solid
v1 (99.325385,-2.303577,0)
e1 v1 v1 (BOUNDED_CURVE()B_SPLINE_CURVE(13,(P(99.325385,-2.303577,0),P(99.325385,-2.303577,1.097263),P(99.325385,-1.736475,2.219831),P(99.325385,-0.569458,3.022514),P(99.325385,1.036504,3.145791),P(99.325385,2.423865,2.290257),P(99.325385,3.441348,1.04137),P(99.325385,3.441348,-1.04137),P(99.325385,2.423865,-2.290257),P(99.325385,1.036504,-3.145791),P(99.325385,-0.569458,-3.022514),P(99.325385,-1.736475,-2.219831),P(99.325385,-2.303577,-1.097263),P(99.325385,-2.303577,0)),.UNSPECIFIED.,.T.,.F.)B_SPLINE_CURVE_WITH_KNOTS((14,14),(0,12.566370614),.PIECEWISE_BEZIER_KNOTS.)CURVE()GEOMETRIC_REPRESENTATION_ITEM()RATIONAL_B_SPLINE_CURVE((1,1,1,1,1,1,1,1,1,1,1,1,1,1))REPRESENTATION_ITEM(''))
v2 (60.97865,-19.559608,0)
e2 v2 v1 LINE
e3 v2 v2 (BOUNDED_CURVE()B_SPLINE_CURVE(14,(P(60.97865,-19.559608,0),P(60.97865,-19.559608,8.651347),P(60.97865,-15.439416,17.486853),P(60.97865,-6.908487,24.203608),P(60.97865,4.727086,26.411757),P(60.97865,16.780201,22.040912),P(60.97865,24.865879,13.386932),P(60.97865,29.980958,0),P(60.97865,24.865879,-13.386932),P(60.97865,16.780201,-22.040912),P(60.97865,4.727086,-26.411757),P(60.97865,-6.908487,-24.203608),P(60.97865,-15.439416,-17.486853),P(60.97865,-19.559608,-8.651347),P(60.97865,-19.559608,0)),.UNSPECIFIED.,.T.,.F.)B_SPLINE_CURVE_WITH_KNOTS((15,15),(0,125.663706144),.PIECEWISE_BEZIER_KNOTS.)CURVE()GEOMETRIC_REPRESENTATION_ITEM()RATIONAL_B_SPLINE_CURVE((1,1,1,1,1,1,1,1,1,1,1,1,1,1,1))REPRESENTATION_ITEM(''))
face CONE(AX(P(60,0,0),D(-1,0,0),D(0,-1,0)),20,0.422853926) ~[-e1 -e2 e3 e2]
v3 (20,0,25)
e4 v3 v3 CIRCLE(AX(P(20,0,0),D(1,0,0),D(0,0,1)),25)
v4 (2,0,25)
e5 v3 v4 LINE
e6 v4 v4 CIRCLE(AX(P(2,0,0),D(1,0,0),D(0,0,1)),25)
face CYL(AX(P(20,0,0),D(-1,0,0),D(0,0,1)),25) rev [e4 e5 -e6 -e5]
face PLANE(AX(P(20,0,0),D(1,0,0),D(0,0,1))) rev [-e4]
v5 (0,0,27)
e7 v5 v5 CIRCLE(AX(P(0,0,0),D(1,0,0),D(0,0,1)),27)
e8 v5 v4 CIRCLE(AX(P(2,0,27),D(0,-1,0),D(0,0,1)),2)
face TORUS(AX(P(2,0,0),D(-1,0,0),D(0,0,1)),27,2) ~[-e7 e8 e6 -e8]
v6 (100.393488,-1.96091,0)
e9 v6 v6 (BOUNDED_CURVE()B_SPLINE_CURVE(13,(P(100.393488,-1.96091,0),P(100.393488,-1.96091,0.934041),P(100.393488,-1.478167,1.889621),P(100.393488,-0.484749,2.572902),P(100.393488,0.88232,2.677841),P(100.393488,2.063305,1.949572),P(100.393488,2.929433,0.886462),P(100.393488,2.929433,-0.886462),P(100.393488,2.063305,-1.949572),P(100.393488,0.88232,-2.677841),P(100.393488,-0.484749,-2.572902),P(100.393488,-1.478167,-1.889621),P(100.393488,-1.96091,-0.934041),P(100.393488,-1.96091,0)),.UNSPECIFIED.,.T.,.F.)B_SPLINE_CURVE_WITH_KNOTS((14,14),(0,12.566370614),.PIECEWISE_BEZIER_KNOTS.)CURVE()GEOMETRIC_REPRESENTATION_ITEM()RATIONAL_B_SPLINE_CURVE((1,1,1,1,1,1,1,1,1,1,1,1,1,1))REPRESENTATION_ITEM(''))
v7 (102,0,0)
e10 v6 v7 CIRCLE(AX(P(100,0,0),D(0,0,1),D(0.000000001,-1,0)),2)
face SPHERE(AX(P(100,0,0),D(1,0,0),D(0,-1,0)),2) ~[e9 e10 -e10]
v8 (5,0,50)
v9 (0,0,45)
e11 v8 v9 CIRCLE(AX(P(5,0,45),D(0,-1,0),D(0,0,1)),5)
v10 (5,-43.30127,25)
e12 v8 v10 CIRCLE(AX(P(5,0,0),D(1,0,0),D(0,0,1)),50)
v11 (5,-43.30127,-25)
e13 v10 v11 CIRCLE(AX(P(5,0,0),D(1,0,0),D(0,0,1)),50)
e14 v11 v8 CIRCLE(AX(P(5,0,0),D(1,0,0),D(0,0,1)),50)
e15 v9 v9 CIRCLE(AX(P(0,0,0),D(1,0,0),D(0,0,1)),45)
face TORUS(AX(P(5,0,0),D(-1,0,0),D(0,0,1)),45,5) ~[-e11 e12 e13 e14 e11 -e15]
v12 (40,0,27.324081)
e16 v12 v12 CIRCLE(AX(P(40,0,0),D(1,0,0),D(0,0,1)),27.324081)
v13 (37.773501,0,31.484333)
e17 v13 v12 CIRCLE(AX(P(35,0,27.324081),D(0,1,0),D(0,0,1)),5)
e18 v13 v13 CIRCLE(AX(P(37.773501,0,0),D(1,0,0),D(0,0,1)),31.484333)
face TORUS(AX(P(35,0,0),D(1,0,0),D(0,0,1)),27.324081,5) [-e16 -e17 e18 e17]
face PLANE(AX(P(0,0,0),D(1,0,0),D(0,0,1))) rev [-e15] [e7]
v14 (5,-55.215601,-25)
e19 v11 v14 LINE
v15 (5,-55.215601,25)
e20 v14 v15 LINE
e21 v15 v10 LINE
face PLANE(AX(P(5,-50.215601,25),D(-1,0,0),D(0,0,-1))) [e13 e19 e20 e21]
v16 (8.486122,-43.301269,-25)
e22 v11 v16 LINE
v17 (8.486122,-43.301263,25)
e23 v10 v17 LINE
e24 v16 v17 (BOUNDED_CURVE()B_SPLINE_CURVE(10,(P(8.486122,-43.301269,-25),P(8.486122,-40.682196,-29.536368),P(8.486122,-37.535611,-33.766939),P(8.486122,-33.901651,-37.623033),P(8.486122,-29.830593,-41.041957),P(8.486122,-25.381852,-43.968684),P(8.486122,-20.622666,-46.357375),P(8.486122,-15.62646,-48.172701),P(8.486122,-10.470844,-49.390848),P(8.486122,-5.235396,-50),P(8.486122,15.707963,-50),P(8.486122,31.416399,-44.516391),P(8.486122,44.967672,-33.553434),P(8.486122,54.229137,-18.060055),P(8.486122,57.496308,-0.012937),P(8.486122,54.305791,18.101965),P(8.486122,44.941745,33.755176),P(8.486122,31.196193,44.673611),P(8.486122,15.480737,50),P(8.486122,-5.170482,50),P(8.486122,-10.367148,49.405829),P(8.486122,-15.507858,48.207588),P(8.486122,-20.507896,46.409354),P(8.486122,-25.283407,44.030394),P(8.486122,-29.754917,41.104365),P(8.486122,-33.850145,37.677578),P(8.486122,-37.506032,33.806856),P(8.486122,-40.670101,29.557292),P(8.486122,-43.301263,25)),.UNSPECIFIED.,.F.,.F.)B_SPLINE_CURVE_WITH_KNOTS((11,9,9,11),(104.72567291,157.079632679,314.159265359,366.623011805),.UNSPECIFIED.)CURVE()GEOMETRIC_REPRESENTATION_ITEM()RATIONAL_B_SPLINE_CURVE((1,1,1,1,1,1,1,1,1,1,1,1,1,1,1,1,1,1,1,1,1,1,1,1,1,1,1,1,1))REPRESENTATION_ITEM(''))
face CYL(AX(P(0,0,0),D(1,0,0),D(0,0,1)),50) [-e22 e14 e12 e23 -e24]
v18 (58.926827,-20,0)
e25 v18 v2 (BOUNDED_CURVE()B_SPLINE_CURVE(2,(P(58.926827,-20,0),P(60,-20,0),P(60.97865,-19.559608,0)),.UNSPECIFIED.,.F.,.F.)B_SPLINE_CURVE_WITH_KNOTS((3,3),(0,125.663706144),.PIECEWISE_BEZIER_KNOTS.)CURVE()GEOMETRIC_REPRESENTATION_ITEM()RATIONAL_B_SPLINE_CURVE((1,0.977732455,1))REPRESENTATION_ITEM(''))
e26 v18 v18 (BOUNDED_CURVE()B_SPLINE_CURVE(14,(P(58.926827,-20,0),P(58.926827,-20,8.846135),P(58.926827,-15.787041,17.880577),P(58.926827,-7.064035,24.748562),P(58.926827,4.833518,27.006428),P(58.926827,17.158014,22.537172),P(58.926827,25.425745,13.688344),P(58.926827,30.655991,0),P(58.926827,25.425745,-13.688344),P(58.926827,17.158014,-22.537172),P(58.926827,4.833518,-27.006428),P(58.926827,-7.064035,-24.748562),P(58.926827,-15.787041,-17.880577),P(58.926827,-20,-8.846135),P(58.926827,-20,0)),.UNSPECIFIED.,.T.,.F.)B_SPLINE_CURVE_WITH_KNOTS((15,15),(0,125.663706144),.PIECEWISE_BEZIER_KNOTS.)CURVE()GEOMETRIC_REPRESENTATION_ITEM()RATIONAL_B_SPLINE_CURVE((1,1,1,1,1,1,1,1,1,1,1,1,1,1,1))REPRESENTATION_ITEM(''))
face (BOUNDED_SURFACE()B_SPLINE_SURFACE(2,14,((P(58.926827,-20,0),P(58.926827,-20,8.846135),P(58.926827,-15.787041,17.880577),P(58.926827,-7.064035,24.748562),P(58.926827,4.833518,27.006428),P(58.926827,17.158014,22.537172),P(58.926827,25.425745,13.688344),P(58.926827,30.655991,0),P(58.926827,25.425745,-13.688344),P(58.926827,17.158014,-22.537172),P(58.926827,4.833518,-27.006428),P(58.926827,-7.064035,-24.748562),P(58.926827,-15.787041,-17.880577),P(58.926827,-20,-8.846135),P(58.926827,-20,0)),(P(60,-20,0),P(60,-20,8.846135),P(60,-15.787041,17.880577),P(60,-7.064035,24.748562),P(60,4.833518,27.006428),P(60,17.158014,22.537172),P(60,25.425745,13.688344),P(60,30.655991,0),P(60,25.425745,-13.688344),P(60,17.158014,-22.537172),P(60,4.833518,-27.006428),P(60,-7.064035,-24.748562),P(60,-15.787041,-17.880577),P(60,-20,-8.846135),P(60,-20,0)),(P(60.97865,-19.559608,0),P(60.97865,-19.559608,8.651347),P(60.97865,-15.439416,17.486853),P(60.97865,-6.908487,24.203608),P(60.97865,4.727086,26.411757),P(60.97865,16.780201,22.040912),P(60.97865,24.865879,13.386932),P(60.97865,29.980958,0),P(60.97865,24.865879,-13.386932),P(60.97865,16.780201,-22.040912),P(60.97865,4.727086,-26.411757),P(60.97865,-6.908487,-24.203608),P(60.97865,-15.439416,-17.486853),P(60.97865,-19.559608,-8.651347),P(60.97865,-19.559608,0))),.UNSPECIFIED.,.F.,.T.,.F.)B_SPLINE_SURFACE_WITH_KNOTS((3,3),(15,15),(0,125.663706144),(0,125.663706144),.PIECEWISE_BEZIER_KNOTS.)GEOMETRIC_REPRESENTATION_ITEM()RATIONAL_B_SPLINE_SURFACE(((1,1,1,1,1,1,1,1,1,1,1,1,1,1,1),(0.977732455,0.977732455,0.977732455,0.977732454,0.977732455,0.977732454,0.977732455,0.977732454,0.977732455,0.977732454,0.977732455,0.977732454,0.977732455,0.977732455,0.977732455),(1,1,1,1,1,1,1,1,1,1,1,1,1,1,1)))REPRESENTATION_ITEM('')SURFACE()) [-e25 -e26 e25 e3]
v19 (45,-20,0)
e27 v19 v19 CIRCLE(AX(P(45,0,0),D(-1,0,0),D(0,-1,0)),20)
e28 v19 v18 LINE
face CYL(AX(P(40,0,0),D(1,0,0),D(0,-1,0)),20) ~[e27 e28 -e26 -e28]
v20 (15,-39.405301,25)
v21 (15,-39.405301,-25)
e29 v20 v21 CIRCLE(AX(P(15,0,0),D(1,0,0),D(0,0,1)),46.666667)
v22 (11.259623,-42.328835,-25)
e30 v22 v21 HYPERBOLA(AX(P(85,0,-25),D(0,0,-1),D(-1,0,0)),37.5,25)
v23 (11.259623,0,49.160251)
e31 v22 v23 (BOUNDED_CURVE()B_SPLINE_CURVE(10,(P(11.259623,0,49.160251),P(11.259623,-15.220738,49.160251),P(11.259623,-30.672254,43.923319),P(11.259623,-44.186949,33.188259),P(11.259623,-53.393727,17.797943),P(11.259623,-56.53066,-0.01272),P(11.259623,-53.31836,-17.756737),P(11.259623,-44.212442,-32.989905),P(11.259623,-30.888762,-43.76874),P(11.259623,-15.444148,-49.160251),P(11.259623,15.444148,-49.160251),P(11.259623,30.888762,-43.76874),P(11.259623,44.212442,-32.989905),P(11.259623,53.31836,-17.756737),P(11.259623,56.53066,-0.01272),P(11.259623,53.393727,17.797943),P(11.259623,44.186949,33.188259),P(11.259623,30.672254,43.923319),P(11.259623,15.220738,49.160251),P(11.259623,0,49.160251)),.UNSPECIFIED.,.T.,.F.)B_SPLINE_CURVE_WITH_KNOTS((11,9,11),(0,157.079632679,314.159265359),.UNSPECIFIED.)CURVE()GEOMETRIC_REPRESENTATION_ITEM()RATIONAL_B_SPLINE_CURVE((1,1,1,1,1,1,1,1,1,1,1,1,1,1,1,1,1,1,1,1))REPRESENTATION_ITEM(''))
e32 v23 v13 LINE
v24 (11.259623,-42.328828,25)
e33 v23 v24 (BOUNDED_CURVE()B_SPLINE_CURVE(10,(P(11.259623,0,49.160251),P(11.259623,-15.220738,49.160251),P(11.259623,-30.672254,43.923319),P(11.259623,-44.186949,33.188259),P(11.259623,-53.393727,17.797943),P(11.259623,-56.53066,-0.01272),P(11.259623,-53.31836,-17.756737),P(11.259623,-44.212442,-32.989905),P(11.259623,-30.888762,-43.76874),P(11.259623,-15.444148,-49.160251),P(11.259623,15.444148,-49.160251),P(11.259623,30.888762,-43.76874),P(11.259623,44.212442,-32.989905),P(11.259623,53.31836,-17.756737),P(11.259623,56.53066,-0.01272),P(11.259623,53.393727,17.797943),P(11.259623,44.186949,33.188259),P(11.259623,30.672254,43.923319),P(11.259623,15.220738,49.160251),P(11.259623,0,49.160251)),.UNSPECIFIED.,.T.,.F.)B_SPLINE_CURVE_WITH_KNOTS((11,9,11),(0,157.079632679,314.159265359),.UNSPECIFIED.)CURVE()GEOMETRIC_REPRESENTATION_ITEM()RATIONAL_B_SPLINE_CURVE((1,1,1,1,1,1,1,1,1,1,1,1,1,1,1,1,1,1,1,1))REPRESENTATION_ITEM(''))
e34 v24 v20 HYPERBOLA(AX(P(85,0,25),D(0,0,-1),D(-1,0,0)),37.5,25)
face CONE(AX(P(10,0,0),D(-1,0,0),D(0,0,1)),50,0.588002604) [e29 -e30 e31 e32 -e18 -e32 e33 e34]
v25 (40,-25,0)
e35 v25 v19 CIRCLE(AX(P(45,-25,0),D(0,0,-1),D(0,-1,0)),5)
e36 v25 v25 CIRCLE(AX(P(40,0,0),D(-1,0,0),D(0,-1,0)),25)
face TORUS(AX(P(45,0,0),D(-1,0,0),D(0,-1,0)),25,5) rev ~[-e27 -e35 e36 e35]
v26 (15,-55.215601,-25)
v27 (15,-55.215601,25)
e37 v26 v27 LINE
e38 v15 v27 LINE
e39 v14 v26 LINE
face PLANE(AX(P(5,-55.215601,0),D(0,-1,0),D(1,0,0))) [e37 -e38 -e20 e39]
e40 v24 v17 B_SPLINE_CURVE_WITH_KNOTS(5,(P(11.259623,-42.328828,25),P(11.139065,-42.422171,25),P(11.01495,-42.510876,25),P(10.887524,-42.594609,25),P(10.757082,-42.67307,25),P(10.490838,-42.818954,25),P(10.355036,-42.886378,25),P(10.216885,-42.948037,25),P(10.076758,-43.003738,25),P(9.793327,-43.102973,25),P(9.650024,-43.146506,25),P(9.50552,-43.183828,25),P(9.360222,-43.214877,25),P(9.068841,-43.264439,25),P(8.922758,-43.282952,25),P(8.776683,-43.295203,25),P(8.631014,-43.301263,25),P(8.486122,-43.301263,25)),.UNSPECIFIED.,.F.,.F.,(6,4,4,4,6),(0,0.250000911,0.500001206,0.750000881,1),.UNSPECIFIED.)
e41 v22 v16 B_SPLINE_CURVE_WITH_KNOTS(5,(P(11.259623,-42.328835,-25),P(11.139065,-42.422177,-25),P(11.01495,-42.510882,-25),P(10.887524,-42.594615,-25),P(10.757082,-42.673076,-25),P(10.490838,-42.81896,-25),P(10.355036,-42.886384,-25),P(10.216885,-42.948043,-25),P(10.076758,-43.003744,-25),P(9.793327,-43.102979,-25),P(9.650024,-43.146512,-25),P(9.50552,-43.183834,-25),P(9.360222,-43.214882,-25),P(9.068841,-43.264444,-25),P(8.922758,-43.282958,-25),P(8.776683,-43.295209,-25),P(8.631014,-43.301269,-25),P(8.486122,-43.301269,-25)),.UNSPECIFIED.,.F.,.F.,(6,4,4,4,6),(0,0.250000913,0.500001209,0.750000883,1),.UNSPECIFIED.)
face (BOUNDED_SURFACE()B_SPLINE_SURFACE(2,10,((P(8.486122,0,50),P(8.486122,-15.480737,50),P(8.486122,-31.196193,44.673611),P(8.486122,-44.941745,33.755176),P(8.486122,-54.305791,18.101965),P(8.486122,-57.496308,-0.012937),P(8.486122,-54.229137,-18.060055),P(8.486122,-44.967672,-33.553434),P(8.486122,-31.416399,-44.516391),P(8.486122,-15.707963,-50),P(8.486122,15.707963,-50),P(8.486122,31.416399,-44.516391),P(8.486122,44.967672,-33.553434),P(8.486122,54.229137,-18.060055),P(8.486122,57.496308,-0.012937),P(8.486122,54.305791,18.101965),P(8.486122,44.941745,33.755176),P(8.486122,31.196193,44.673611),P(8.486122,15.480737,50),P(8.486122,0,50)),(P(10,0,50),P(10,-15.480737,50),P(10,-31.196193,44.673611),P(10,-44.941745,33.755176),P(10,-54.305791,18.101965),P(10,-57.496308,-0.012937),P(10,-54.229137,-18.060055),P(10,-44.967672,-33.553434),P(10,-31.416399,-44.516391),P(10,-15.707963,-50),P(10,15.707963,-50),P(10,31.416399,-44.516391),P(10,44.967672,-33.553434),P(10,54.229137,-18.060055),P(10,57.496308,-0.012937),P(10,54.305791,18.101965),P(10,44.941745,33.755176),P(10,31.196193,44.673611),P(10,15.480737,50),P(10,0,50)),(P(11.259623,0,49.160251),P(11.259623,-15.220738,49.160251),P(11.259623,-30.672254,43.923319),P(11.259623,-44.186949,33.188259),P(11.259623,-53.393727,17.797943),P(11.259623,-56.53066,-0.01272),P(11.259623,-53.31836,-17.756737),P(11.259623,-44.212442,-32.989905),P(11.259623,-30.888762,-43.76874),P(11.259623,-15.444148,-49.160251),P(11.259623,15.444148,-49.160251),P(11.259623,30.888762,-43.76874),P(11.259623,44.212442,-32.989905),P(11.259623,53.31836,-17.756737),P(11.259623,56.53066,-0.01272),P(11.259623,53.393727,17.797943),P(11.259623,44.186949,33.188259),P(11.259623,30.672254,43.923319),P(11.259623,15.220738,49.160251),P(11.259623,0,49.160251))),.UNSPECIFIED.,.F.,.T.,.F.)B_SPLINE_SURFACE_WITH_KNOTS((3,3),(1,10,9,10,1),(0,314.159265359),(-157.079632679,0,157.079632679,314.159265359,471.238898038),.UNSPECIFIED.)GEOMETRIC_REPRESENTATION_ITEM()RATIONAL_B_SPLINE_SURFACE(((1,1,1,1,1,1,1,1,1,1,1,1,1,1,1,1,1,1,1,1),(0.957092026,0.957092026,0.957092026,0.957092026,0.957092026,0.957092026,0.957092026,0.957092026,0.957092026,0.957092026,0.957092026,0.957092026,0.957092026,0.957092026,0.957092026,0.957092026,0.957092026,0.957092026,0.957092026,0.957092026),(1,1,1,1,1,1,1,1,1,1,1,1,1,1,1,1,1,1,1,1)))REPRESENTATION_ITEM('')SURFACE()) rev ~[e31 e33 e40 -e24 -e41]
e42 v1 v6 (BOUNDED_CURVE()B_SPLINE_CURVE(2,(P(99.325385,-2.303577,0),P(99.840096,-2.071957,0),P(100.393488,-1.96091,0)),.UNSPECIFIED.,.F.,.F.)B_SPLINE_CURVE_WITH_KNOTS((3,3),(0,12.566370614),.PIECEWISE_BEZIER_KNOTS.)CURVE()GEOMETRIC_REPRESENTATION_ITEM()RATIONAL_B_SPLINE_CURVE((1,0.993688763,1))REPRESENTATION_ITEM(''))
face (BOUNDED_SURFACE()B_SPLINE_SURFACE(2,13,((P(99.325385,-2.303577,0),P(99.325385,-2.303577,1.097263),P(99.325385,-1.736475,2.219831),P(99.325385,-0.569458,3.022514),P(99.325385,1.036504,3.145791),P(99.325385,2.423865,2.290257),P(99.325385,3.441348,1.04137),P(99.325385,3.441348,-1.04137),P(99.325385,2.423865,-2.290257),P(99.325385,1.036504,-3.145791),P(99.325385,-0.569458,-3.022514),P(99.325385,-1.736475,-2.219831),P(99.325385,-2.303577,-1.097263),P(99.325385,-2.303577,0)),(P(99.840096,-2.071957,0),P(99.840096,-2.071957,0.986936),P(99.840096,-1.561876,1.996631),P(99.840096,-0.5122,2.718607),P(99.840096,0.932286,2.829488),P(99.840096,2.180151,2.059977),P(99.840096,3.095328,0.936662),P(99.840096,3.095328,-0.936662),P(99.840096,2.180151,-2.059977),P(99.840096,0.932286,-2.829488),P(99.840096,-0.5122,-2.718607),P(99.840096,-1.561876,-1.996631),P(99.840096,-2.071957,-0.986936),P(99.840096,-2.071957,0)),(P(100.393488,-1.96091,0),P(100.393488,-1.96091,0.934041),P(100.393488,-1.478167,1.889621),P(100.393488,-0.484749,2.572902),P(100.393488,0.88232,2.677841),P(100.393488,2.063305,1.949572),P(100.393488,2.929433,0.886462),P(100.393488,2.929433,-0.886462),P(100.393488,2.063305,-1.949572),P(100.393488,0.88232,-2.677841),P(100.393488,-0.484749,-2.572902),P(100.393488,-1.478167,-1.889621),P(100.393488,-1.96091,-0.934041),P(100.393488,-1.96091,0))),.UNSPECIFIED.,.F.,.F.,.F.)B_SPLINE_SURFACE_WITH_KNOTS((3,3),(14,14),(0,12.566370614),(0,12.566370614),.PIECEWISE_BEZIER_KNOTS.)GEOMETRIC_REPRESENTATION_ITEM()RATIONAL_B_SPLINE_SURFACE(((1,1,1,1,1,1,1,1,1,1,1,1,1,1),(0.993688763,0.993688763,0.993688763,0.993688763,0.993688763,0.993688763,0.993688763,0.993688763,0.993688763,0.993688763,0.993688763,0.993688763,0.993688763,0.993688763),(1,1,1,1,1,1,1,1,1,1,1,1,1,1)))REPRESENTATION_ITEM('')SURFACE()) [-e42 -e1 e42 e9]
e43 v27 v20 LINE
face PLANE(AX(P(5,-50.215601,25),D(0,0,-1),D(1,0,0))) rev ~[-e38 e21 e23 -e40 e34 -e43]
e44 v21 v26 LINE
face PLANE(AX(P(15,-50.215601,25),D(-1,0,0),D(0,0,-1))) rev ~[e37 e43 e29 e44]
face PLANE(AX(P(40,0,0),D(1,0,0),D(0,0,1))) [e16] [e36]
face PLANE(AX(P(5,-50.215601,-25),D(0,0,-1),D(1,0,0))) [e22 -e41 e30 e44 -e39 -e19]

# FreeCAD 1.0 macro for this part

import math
import FreeCAD as App
import Part
import Sketcher

V = App.Vector
Q = App.Units.Quantity


def edges_at(feature, points):
    """Names of the edges that pass closest to the given points."""
    edges = feature.Shape.Edges
    near = lambda p: min(range(len(edges)), key=lambda i: edges[i].distToShape(Part.Vertex(*p))[0])
    return sorted({f"Edge{near(p) + 1}" for p in points})


def add_polygon(sketch, points):
    """Adds a closed chain of lines whose ends are joined by coincident constraints."""
    first, n = sketch.GeometryCount, len(points)
    for a, b in zip(points, points[1:] + points[:1]):
        sketch.addGeometry(Part.LineSegment(App.Vector(*a, 0), App.Vector(*b, 0)), False)
    for i in range(n):
        sketch.addConstraint(Sketcher.Constraint("Coincident", first + i, 2, first + (i + 1) % n, 1))

doc = App.newDocument("Part")
body = doc.addObject("PartDesign::Body", "Body")

# Sketch on XY plane
sketch1 = body.newObject("Sketcher::SketchObject", "Sketch")
sketch1.AttachmentSupport = (doc.getObject("XY_Plane"), [""])
sketch1.MapMode = "FlatFace"
add_polygon(sketch1, [(0, -50), (10, -50), (40, -30), (40, 0), (20, 0), (20, -25), (0, -25)])  # lines 0-6
sketch1.addConstraint([
    Sketcher.Constraint("Horizontal", 0),
    Sketcher.Constraint("Vertical", 2),
    Sketcher.Constraint("Horizontal", 3),
    Sketcher.Constraint("Vertical", 4),
    Sketcher.Constraint("Horizontal", 5),
    Sketcher.Constraint("Vertical", 6),
    Sketcher.Constraint("PointOnObject", 2, 2, -1),
    Sketcher.Constraint("PointOnObject", 5, 2, -2),
    Sketcher.Constraint("Equal", 3, 5),
    Sketcher.Constraint("Equal", 4, 6),
    Sketcher.Constraint("DistanceX", 0, 1, 0, 2, Q("10 mm")),
    Sketcher.Constraint("DistanceX", 3, 2, 3, 1, Q("20 mm")),
    Sketcher.Constraint("DistanceY", 2, 1, 2, 2, Q("30 mm")),
    Sketcher.Constraint("DistanceY", 4, 2, 4, 1, Q("25 mm")),
])
revolution = body.newObject("PartDesign::Revolution", "Revolution")
revolution.Profile = sketch1
revolution.ReferenceAxis = (sketch1, ["H_Axis"])
revolution.Angle = 360

# Sketch on XY plane
sketch2 = body.newObject("Sketcher::SketchObject", "Sketch001")
sketch2.AttachmentSupport = (doc.getObject("XY_Plane"), [""])
sketch2.MapMode = "FlatFace"
sketch2.addGeometry([
    Part.LineSegment(V(40, -20, 0), V(60, -20, 0)),  # 0
    Part.LineSegment(V(60, -20, 0), V(100, -2, 0)),  # 1
    Part.ArcOfCircle(Part.Circle(V(100, 0, 0), V(0, 0, 1), 2), math.radians(-90), math.radians(0)),  # 2
    Part.LineSegment(V(102, 0, 0), V(40, 0, 0)),  # 3
    Part.LineSegment(V(40, 0, 0), V(40, -20, 0)),  # 4
], False)
sketch2.addConstraint([
    Sketcher.Constraint("Coincident", 0, 2, 1, 1),
    Sketcher.Constraint("Coincident", 1, 2, 2, 1),
    Sketcher.Constraint("Coincident", 2, 2, 3, 1),
    Sketcher.Constraint("Coincident", 3, 2, 4, 1),
    Sketcher.Constraint("Coincident", 4, 2, 0, 1),
    Sketcher.Constraint("Horizontal", 0),
    Sketcher.Constraint("Horizontal", 3),
    Sketcher.Constraint("Vertical", 4),
    Sketcher.Constraint("PointOnObject", 2, 3, -1),
    Sketcher.Constraint("PointOnObject", 2, 2, -1),
    Sketcher.Constraint("Vertical", 2, 3, 1, 2),
    Sketcher.Constraint("Equal", 0, 4),
    Sketcher.Constraint("Radius", 2, Q("2 mm")),
    Sketcher.Constraint("DistanceX", 0, 1, 0, 2, Q("20 mm")),
    Sketcher.Constraint("DistanceX", 3, 2, 3, 1, Q("62 mm")),
    Sketcher.Constraint("DistanceX", -1, 1, 2, 3, Q("100 mm")),
])
revolution2 = body.newObject("PartDesign::Revolution", "Revolution001")
revolution2.Profile = sketch2
revolution2.ReferenceAxis = (sketch2, ["H_Axis"])
revolution2.Angle = 360
doc.recompute()

fillet = body.newObject("PartDesign::Fillet", "Fillet")
fillet.Base = (revolution2, edges_at(revolution2, [
    (40, 20, 0),
    (60, 20, 0),
    (40, 0, -30),
    (10, 0, -50),
    (0, 0, -50),
]))
fillet.Radius = 5
doc.recompute()

fillet2 = body.newObject("PartDesign::Fillet", "Fillet001")
fillet2.Base = (fillet, edges_at(fillet, [(100, 2, 0)]))
fillet2.Radius = 5
doc.recompute()

fillet3 = body.newObject("PartDesign::Fillet", "Fillet002")
fillet3.Base = (fillet2, edges_at(fillet2, [(0, 0, -25)]))
fillet3.Radius = 2
body2 = doc.addObject("PartDesign::Body", "Body001")

# Sketch on XY plane
sketch3 = body2.newObject("Sketcher::SketchObject", "Sketch002")
sketch3.AttachmentSupport = (doc.getObject("XY_Plane001"), [""])
sketch3.MapMode = "FlatFace"
add_polygon(sketch3, [(5, -50), (5, -55), (15, -55), (15, -50)])  # lines 0-3
sketch3.addConstraint([
    Sketcher.Constraint("Vertical", 0),
    Sketcher.Constraint("Horizontal", 1),
    Sketcher.Constraint("Vertical", 2),
    Sketcher.Constraint("Horizontal", 3),
    Sketcher.Constraint("DistanceX", 1, 1, 1, 2, Q("10 mm")),
    Sketcher.Constraint("DistanceY", 0, 2, 0, 1, Q("5 mm")),
    Sketcher.Constraint("DistanceX", -1, 1, 0, 2, Q("5 mm")),
    Sketcher.Constraint("DistanceY", 0, 2, -1, 1, Q("55.215601 mm")),
])
pad1 = body2.newObject("PartDesign::Pad", "Pad")
pad1.Profile = sketch3
pad1.Length = 50
pad1.Midplane = True
body.AllowCompound = True
doc.recompute()

boolean = body.newObject("PartDesign::Boolean", "Boolean")
boolean.Type = "Fuse"
boolean.addObjects([body2])

# Sketch on XZ plane
sketch4 = body.newObject("Sketcher::SketchObject", "Sketch003")
sketch4.AttachmentSupport = (doc.getObject("XZ_Plane"), [""])
sketch4.MapMode = "FlatFace"
sketch4.AttachmentOffset = App.Placement(V(0, 0, 50.215601), App.Rotation())
add_polygon(sketch4, [(5, -25), (5, 25), (15, 25), (15, -25)])  # lines 0-3
sketch4.addConstraint([
    Sketcher.Constraint("Vertical", 0),
    Sketcher.Constraint("Horizontal", 1),
    Sketcher.Constraint("Vertical", 2),
    Sketcher.Constraint("Horizontal", 3),
    Sketcher.Constraint("DistanceX", 1, 1, 1, 2, Q("10 mm")),
    Sketcher.Constraint("DistanceY", 0, 1, 0, 2, Q("50 mm")),
    Sketcher.Constraint("DistanceX", -1, 1, 0, 2, Q("5 mm")),
    Sketcher.Constraint("DistanceY", -1, 1, 0, 2, Q("25 mm")),
])
pad2 = body.newObject("PartDesign::Pad", "Pad001")
pad2.Profile = sketch4
pad2.Length = 10.810299
pad2.Reversed = True

doc.recompute()
